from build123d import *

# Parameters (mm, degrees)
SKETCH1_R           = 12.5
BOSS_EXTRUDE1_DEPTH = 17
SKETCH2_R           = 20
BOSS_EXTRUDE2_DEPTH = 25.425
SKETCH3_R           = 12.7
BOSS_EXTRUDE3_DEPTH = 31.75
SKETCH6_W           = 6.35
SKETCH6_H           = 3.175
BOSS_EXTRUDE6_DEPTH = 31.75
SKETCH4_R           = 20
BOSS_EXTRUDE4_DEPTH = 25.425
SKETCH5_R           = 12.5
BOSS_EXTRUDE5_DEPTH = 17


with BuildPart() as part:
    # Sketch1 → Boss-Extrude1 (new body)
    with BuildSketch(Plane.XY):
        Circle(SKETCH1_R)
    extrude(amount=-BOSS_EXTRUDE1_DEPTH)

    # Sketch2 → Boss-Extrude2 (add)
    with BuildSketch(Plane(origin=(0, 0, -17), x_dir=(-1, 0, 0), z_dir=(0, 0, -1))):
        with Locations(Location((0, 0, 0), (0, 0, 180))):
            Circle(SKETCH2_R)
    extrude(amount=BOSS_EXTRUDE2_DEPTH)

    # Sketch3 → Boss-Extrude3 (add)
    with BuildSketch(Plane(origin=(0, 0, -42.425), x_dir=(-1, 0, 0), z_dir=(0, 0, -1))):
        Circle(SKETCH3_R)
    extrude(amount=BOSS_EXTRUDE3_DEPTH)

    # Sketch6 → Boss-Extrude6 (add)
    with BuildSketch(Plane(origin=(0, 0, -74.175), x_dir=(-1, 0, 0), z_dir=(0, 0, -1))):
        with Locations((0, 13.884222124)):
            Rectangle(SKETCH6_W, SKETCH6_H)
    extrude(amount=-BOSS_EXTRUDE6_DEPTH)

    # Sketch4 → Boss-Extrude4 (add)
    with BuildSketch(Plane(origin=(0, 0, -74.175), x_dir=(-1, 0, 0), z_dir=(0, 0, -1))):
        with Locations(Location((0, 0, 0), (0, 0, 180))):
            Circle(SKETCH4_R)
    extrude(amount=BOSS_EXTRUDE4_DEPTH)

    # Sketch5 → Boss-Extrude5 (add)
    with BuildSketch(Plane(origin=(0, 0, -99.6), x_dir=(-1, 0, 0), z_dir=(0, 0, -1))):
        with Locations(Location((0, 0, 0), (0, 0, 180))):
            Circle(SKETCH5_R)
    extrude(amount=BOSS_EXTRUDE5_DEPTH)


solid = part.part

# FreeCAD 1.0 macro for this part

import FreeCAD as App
import Part
import Sketcher
from FreeCAD import Vector
Q = App.Units.Quantity


def add_polygon(sketch, points):
    """Adds a closed chain of lines whose ends are joined by coincident constraints."""
    first, n = sketch.GeometryCount, len(points)
    for a, b in zip(points, points[1:] + points[:1]):
        sketch.addGeometry(Part.LineSegment(App.Vector(*a, 0), App.Vector(*b, 0)), False)
    for i in range(n):
        sketch.addConstraint(Sketcher.Constraint("Coincident", first + i, 2, first + (i + 1) % n, 1))

doc = App.newDocument("Part")
body = doc.addObject("PartDesign::Body", "Body")

# Sketch on XY plane
sketch1 = body.newObject("Sketcher::SketchObject", "Sketch")
sketch1.AttachmentSupport = (doc.getObject("XY_Plane"), [""])
sketch1.MapMode = "FlatFace"
sketch1.addGeometry(Part.Circle(Vector(0, 0, 0), Vector(0, 0, 1), 12), False)
sketch1.addConstraint(Sketcher.Constraint("Coincident", 0, 3, -1, 1))
sketch1.addConstraint(Sketcher.Constraint("Diameter", 0, 25.0))
pad1 = body.newObject("PartDesign::Pad", "Pad")
pad1.Profile = sketch1
pad1.Length = 17
pad1.Reversed = True

# Sketch on XY plane
sketch2 = body.newObject("Sketcher::SketchObject", "Sketch001")
sketch2.AttachmentSupport = (doc.getObject("XY_Plane"), [""])
sketch2.MapMode = "FlatFace"
sketch2.AttachmentOffset = App.Placement(Vector(0, 0, -17), App.Rotation())
sketch2.addGeometry(Part.Circle(Vector(0, 0, 0), Vector(0, 0, 1), 20), False)
sketch2.addConstraint(Sketcher.Constraint("Coincident", 0, 3, -1, 1))
sketch2.addConstraint(Sketcher.Constraint("Diameter", 0, 40.0))
pad2 = body.newObject("PartDesign::Pad", "Pad001")
pad2.Profile = sketch2
pad2.Length = 25.425
pad2.Reversed = True

# Sketch on XY plane
sketch3 = body.newObject("Sketcher::SketchObject", "Sketch002")
sketch3.AttachmentSupport = (doc.getObject("XY_Plane"), [""])
sketch3.MapMode = "FlatFace"
sketch3.AttachmentOffset = App.Placement(Vector(0, 0, -42.425), App.Rotation())
sketch3.addGeometry(Part.Circle(Vector(0, 0, 0), Vector(0, 0, 1), 13), False)
sketch3.addConstraint(Sketcher.Constraint("Coincident", 0, 3, -1, 1))
sketch3.addConstraint(Sketcher.Constraint("Diameter", 0, Q("1 in")))
pad3 = body.newObject("PartDesign::Pad", "Pad002")
pad3.Profile = sketch3
pad3.Length = Q("1.25 in")
pad3.Reversed = True

# Sketch on XY plane
sketch4 = body.newObject("Sketcher::SketchObject", "Sketch003")
sketch4.AttachmentSupport = (doc.getObject("XY_Plane"), [""])
sketch4.MapMode = "FlatFace"
sketch4.AttachmentOffset = App.Placement(Vector(0, 0, -74.175), App.Rotation())
add_polygon(sketch4, [(3.2, 15.5), (3.2, 12.3), (-3.2, 12.3), (-3.2, 15.5)])  # lines 0-3
sketch4.addConstraint(Sketcher.Constraint("Vertical", 0))
sketch4.addConstraint(Sketcher.Constraint("Horizontal", 1))
sketch4.addConstraint(Sketcher.Constraint("Vertical", 2))
sketch4.addConstraint(Sketcher.Constraint("Horizontal", 3))
sketch4.addConstraint(Sketcher.Constraint("DistanceX", 1, 2, 1, 1, Q("0.25 in")))
sketch4.addConstraint(Sketcher.Constraint("DistanceY", 0, 2, 0, 1, Q("0.125 in")))
sketch4.addConstraint(Sketcher.Constraint("DistanceX", -1, 1, 0, 2, Q("0.125 in")))
sketch4.addConstraint(Sketcher.Constraint("DistanceY", -1, 1, 0, 2, 12.296722))
pad4 = body.newObject("PartDesign::Pad", "Pad003")
pad4.Profile = sketch4
pad4.Length = Q("1.25 in")

# Sketch on XY plane
sketch5 = body.newObject("Sketcher::SketchObject", "Sketch004")
sketch5.AttachmentSupport = (doc.getObject("XY_Plane"), [""])
sketch5.MapMode = "FlatFace"
sketch5.AttachmentOffset = App.Placement(Vector(0, 0, -74.175), App.Rotation())
sketch5.addGeometry(Part.Circle(Vector(0, 0, 0), Vector(0, 0, 1), 20), False)
sketch5.addConstraint(Sketcher.Constraint("Coincident", 0, 3, -1, 1))
sketch5.addConstraint(Sketcher.Constraint("Diameter", 0, 40.0))
pad5 = body.newObject("PartDesign::Pad", "Pad004")
pad5.Profile = sketch5
pad5.Length = 25.425
pad5.Reversed = True

# Sketch on XY plane
sketch6 = body.newObject("Sketcher::SketchObject", "Sketch005")
sketch6.AttachmentSupport = (doc.getObject("XY_Plane"), [""])
sketch6.MapMode = "FlatFace"
sketch6.AttachmentOffset = App.Placement(Vector(0, 0, -99.6), App.Rotation())
sketch6.addGeometry(Part.Circle(Vector(0, 0, 0), Vector(0, 0, 1), 12), False)
sketch6.addConstraint(Sketcher.Constraint("Coincident", 0, 3, -1, 1))
sketch6.addConstraint(Sketcher.Constraint("Diameter", 0, 25.0))
pad6 = body.newObject("PartDesign::Pad", "Pad005")
pad6.Profile = sketch6
pad6.Length = 17
pad6.Reversed = True

doc.recompute()
